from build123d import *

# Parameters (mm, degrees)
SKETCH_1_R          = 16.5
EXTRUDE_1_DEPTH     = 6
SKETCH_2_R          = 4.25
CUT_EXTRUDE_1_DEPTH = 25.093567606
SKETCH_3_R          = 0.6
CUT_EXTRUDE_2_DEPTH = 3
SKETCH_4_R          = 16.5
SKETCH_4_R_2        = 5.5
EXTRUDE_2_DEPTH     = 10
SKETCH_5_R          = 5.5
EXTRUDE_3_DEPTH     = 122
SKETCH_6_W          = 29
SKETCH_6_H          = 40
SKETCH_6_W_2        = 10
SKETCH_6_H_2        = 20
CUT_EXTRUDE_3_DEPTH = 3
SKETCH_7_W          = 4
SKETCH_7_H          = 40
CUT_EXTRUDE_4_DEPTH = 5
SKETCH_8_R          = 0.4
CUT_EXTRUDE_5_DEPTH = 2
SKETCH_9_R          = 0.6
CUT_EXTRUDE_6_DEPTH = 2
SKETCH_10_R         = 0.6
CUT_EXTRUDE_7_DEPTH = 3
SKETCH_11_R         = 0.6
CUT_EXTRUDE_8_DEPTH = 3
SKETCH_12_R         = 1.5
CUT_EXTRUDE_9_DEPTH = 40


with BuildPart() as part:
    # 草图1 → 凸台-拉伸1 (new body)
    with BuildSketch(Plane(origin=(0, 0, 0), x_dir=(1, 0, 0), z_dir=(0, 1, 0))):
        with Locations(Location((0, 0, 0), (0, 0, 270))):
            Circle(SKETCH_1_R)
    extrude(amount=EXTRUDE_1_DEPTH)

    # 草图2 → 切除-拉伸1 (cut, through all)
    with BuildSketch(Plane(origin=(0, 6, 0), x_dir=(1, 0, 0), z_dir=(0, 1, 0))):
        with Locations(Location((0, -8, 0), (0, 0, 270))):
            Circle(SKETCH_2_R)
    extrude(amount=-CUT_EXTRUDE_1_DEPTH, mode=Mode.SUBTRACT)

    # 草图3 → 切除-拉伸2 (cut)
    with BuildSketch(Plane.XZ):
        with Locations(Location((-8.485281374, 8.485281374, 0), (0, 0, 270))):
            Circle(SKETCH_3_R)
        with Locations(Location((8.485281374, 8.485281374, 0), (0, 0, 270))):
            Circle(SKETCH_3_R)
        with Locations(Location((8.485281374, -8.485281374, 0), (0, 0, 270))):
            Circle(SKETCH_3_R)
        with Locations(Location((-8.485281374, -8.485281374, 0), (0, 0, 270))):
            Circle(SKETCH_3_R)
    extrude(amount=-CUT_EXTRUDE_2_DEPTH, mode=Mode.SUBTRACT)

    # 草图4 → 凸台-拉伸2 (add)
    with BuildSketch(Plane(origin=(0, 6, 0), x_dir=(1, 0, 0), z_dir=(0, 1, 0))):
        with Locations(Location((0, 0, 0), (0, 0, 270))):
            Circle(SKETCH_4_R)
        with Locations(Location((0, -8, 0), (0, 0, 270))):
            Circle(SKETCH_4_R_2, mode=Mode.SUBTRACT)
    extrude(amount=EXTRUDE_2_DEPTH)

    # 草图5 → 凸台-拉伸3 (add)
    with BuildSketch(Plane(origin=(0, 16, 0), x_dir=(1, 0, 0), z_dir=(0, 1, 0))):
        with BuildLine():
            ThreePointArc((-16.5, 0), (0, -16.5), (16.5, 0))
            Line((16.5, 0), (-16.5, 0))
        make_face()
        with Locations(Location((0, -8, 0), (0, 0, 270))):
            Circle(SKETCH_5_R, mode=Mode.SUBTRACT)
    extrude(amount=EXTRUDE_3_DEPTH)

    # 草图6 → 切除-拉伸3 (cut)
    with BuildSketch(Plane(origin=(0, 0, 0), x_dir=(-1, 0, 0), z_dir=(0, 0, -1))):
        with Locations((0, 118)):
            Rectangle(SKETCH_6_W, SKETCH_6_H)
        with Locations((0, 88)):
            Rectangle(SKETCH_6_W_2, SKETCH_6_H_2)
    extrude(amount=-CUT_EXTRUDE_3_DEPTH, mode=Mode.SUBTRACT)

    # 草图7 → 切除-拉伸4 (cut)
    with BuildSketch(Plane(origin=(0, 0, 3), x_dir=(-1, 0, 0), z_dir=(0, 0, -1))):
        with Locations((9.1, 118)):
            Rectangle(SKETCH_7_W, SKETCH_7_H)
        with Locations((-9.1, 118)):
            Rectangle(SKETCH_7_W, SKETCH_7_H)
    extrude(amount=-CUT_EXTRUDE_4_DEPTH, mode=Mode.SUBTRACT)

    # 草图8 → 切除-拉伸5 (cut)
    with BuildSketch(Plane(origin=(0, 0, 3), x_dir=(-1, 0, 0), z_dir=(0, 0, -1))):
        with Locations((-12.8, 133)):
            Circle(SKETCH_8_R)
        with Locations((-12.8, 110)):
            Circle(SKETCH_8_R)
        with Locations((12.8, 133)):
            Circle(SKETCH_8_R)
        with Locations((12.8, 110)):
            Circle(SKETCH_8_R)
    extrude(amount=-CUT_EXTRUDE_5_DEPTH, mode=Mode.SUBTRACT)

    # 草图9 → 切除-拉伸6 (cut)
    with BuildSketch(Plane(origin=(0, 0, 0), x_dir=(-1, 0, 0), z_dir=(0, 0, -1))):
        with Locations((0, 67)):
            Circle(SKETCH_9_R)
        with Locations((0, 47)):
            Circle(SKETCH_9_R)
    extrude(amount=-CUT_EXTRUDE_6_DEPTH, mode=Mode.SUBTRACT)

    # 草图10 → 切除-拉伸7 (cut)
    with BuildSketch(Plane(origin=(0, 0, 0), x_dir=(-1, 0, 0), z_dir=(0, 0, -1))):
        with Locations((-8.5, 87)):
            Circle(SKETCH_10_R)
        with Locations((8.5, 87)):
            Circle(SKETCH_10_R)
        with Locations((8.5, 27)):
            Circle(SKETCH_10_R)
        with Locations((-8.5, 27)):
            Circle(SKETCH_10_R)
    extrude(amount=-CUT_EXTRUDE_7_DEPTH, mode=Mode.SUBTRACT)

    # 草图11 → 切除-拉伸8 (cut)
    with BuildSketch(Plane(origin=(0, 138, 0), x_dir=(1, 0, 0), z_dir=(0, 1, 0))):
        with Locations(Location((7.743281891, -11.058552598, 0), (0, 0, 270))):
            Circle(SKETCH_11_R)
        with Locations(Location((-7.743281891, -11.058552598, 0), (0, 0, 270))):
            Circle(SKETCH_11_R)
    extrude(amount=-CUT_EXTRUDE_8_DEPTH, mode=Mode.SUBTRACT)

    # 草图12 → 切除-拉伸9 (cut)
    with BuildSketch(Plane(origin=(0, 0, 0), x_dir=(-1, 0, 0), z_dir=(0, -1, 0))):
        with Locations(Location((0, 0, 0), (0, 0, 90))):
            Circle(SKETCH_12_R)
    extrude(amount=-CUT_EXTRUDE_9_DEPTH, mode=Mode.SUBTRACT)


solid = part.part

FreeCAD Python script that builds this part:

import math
import FreeCAD as App
import Part
import Sketcher
Q = App.Units.Quantity

doc = App.newDocument("Part")
body = doc.addObject("PartDesign::Body", "Body")

sketch1 = body.newObject("Sketcher::SketchObject", "Sketch")
sketch1.AttachmentSupport = (doc.getObject("XZ_Plane"), [""])
sketch1.MapMode = "FlatFace"
sketch1.addGeometry(Part.Circle(App.Vector(0, 0, 0), App.Vector(0, 0, 1), 16.5), False)
sketch1.addConstraint(Sketcher.Constraint("Coincident", 0, 3, -1, 1))
sketch1.addConstraint(Sketcher.Constraint("Diameter", 0, Q("33 mm")))
pad1 = body.newObject("PartDesign::Pad", "Pad")
pad1.Profile = sketch1
pad1.Length = 6
pad1.Reversed = True

sketch2 = body.newObject("Sketcher::SketchObject", "Sketch001")
sketch2.AttachmentSupport = (doc.getObject("XZ_Plane"), [""])
sketch2.MapMode = "FlatFace"
sketch2.AttachmentOffset = App.Placement(App.Vector(0, 0, -6), App.Rotation())
sketch2.addGeometry(Part.Circle(App.Vector(0, 8, 0), App.Vector(0, 0, 1), 4.25), False)
sketch2.addConstraint(Sketcher.Constraint("PointOnObject", 0, 3, -2))
sketch2.addConstraint(Sketcher.Constraint("Diameter", 0, Q("8.5 mm")))
sketch2.addConstraint(Sketcher.Constraint("DistanceY", -1, 1, 0, 3, Q("8 mm")))
pocket1 = body.newObject("PartDesign::Pocket", "Pocket")
pocket1.Profile = sketch2
pocket1.Type = "ThroughAll"
pocket1.Reversed = True

sketch3 = body.newObject("Sketcher::SketchObject", "Sketch002")
sketch3.AttachmentSupport = (doc.getObject("XZ_Plane"), [""])
sketch3.MapMode = "FlatFace"
sketch3.addGeometry(Part.Circle(App.Vector(-8.485281, 8.485281, 0), App.Vector(0, 0, 1), 0.6), False)
sketch3.addGeometry(Part.Circle(App.Vector(8.485281, 8.485281, 0), App.Vector(0, 0, 1), 0.6), False)
sketch3.addGeometry(Part.Circle(App.Vector(8.485281, -8.485281, 0), App.Vector(0, 0, 1), 0.6), False)
sketch3.addGeometry(Part.Circle(App.Vector(-8.485281, -8.485281, 0), App.Vector(0, 0, 1), 0.6), False)
sketch3.addConstraint(Sketcher.Constraint("Equal", 0, 1))
sketch3.addConstraint(Sketcher.Constraint("Equal", 1, 2))
sketch3.addConstraint(Sketcher.Constraint("Equal", 2, 3))
sketch3.addConstraint(Sketcher.Constraint("Symmetric", 0, 3, 2, 3, -1, 1))
sketch3.addConstraint(Sketcher.Constraint("Symmetric", 1, 3, 3, 3, -1, 1))
sketch3.addConstraint(Sketcher.Constraint("Symmetric", 0, 3, 1, 3, -2))
sketch3.addConstraint(Sketcher.Constraint("Diameter", 0, Q("1.2 mm")))
sketch3.addConstraint(Sketcher.Constraint("DistanceX", 0, 3, -1, 1, Q("8.485281 mm")))
sketch3.addConstraint(Sketcher.Constraint("DistanceY", -1, 1, 0, 3, Q("8.485281 mm")))
pocket2 = body.newObject("PartDesign::Pocket", "Pocket001")
pocket2.Profile = sketch3
pocket2.Length = 3

sketch4 = body.newObject("Sketcher::SketchObject", "Sketch003")
sketch4.AttachmentSupport = (doc.getObject("XZ_Plane"), [""])
sketch4.MapMode = "FlatFace"
sketch4.AttachmentOffset = App.Placement(App.Vector(0, 0, -6), App.Rotation())
sketch4.addGeometry(Part.Circle(App.Vector(0, 0, 0), App.Vector(0, 0, 1), 16.5), False)
sketch4.addGeometry(Part.Circle(App.Vector(0, 8, 0), App.Vector(0, 0, 1), 5.5), False)
sketch4.addConstraint(Sketcher.Constraint("Coincident", 0, 3, -1, 1))
sketch4.addConstraint(Sketcher.Constraint("PointOnObject", 1, 3, -2))
sketch4.addConstraint(Sketcher.Constraint("Diameter", 0, Q("33 mm")))
sketch4.addConstraint(Sketcher.Constraint("Diameter", 1, Q("11 mm")))
sketch4.addConstraint(Sketcher.Constraint("DistanceY", -1, 1, 1, 3, Q("8 mm")))
pad2 = body.newObject("PartDesign::Pad", "Pad001")
pad2.Profile = sketch4
pad2.Length = 10
pad2.Reversed = True

sketch5 = body.newObject("Sketcher::SketchObject", "Sketch004")
sketch5.AttachmentSupport = (doc.getObject("XZ_Plane"), [""])
sketch5.MapMode = "FlatFace"
sketch5.AttachmentOffset = App.Placement(App.Vector(0, 0, -16), App.Rotation())
sketch5.addGeometry(Part.ArcOfCircle(Part.Circle(App.Vector(0, 0, 0), App.Vector(0, 0, 1), 16.5), math.radians(0), math.radians(180)), False)
sketch5.addGeometry(Part.LineSegment(App.Vector(16.5, 0, 0), App.Vector(-16.5, 0, 0)), False)
sketch5.addGeometry(Part.Circle(App.Vector(0, 8, 0), App.Vector(0, 0, 1), 5.5), False)
sketch5.addConstraint(Sketcher.Constraint("Coincident", 0, 1, 1, 1))
sketch5.addConstraint(Sketcher.Constraint("Coincident", 1, 2, 0, 2))
sketch5.addConstraint(Sketcher.Constraint("Horizontal", 1))
sketch5.addConstraint(Sketcher.Constraint("Coincident", 0, 3, -1, 1))
sketch5.addConstraint(Sketcher.Constraint("PointOnObject", 2, 3, -2))
sketch5.addConstraint(Sketcher.Constraint("PointOnObject", 0, 1, -1))
sketch5.addConstraint(Sketcher.Constraint("Diameter", 2, Q("11 mm")))
sketch5.addConstraint(Sketcher.Constraint("Radius", 0, Q("16.5 mm")))
sketch5.addConstraint(Sketcher.Constraint("DistanceY", -1, 1, 2, 3, Q("8 mm")))
pad3 = body.newObject("PartDesign::Pad", "Pad002")
pad3.Profile = sketch5
pad3.Length = 122
pad3.Reversed = True

sketch6 = body.newObject("Sketcher::SketchObject", "Sketch005")
sketch6.AttachmentSupport = (doc.getObject("XY_Plane"), [""])
sketch6.MapMode = "FlatFace"
sketch6.addGeometry(Part.LineSegment(App.Vector(14.5, 138, 0), App.Vector(14.5, 98, 0)), False)
sketch6.addGeometry(Part.LineSegment(App.Vector(14.5, 98, 0), App.Vector(5, 98, 0)), False)
sketch6.addGeometry(Part.LineSegment(App.Vector(5, 98, 0), App.Vector(5, 78, 0)), False)
sketch6.addGeometry(Part.LineSegment(App.Vector(5, 78, 0), App.Vector(-5, 78, 0)), False)
sketch6.addGeometry(Part.LineSegment(App.Vector(-5, 78, 0), App.Vector(-5, 98, 0)), False)
sketch6.addGeometry(Part.LineSegment(App.Vector(-5, 98, 0), App.Vector(-14.5, 98, 0)), False)
sketch6.addGeometry(Part.LineSegment(App.Vector(-14.5, 98, 0), App.Vector(-14.5, 138, 0)), False)
sketch6.addGeometry(Part.LineSegment(App.Vector(-14.5, 138, 0), App.Vector(14.5, 138, 0)), False)
sketch6.addConstraint(Sketcher.Constraint("Coincident", 0, 2, 1, 1))
sketch6.addConstraint(Sketcher.Constraint("Coincident", 1, 2, 2, 1))
sketch6.addConstraint(Sketcher.Constraint("Coincident", 2, 2, 3, 1))
sketch6.addConstraint(Sketcher.Constraint("Coincident", 3, 2, 4, 1))
sketch6.addConstraint(Sketcher.Constraint("Coincident", 4, 2, 5, 1))
sketch6.addConstraint(Sketcher.Constraint("Coincident", 5, 2, 6, 1))
sketch6.addConstraint(Sketcher.Constraint("Coincident", 6, 2, 7, 1))
sketch6.addConstraint(Sketcher.Constraint("Coincident", 7, 2, 0, 1))
sketch6.addConstraint(Sketcher.Constraint("Vertical", 0))
sketch6.addConstraint(Sketcher.Constraint("Horizontal", 1))
sketch6.addConstraint(Sketcher.Constraint("Vertical", 2))
sketch6.addConstraint(Sketcher.Constraint("Horizontal", 3))
sketch6.addConstraint(Sketcher.Constraint("Vertical", 4))
sketch6.addConstraint(Sketcher.Constraint("Horizontal", 5))
sketch6.addConstraint(Sketcher.Constraint("Vertical", 6))
sketch6.addConstraint(Sketcher.Constraint("Horizontal", 7))
sketch6.addConstraint(Sketcher.Constraint("Symmetric", 1, 2, 4, 2, -2))
sketch6.addConstraint(Sketcher.Constraint("Equal", 1, 5))
sketch6.addConstraint(Sketcher.Constraint("DistanceX", 3, 2, 3, 1, Q("10 mm")))
sketch6.addConstraint(Sketcher.Constraint("DistanceX", 7, 1, 7, 2, Q("29 mm")))
sketch6.addConstraint(Sketcher.Constraint("DistanceY", 0, 2, 0, 1, Q("40 mm")))
sketch6.addConstraint(Sketcher.Constraint("DistanceY", 2, 2, 2, 1, Q("20 mm")))
sketch6.addConstraint(Sketcher.Constraint("DistanceY", -1, 1, 0, 2, Q("98 mm")))
pocket3 = body.newObject("PartDesign::Pocket", "Pocket002")
pocket3.Profile = sketch6
pocket3.Length = 3
pocket3.Reversed = True

sketch7 = body.newObject("Sketcher::SketchObject", "Sketch006")
sketch7.AttachmentSupport = (doc.getObject("XY_Plane"), [""])
sketch7.MapMode = "FlatFace"
sketch7.AttachmentOffset = App.Placement(App.Vector(0, 0, 3), App.Rotation())
sketch7.addGeometry(Part.LineSegment(App.Vector(-7.1, 138, 0), App.Vector(-7.1, 98, 0)), False)
sketch7.addGeometry(Part.LineSegment(App.Vector(-7.1, 98, 0), App.Vector(-11.1, 98, 0)), False)
sketch7.addGeometry(Part.LineSegment(App.Vector(-11.1, 98, 0), App.Vector(-11.1, 138, 0)), False)
sketch7.addGeometry(Part.LineSegment(App.Vector(-11.1, 138, 0), App.Vector(-7.1, 138, 0)), False)
sketch7.addGeometry(Part.LineSegment(App.Vector(11.1, 138, 0), App.Vector(11.1, 98, 0)), False)
sketch7.addGeometry(Part.LineSegment(App.Vector(11.1, 98, 0), App.Vector(7.1, 98, 0)), False)
sketch7.addGeometry(Part.LineSegment(App.Vector(7.1, 98, 0), App.Vector(7.1, 138, 0)), False)
sketch7.addGeometry(Part.LineSegment(App.Vector(7.1, 138, 0), App.Vector(11.1, 138, 0)), False)
sketch7.addConstraint(Sketcher.Constraint("Coincident", 0, 2, 1, 1))
sketch7.addConstraint(Sketcher.Constraint("Coincident", 1, 2, 2, 1))
sketch7.addConstraint(Sketcher.Constraint("Coincident", 2, 2, 3, 1))
sketch7.addConstraint(Sketcher.Constraint("Coincident", 3, 2, 0, 1))
sketch7.addConstraint(Sketcher.Constraint("Coincident", 4, 2, 5, 1))
sketch7.addConstraint(Sketcher.Constraint("Coincident", 5, 2, 6, 1))
sketch7.addConstraint(Sketcher.Constraint("Coincident", 6, 2, 7, 1))
sketch7.addConstraint(Sketcher.Constraint("Coincident", 7, 2, 4, 1))
sketch7.addConstraint(Sketcher.Constraint("Vertical", 0))
sketch7.addConstraint(Sketcher.Constraint("Horizontal", 1))
sketch7.addConstraint(Sketcher.Constraint("Vertical", 2))
sketch7.addConstraint(Sketcher.Constraint("Horizontal", 3))
sketch7.addConstraint(Sketcher.Constraint("Vertical", 4))
sketch7.addConstraint(Sketcher.Constraint("Horizontal", 5))
sketch7.addConstraint(Sketcher.Constraint("Vertical", 6))
sketch7.addConstraint(Sketcher.Constraint("Horizontal", 7))
sketch7.addConstraint(Sketcher.Constraint("Symmetric", 1, 2, 4, 2, -2))
sketch7.addConstraint(Sketcher.Constraint("Symmetric", 3, 2, 6, 2, -2))
sketch7.addConstraint(Sketcher.Constraint("DistanceX", 1, 2, 1, 1, Q("4 mm")))
sketch7.addConstraint(Sketcher.Constraint("DistanceY", 0, 2, 0, 1, Q("40 mm")))
sketch7.addConstraint(Sketcher.Constraint("DistanceY", -1, 1, 0, 2, Q("98 mm")))
sketch7.addConstraint(Sketcher.Constraint("DistanceX", 0, 2, -1, 1, Q("7.1 mm")))
pocket4 = body.newObject("PartDesign::Pocket", "Pocket003")
pocket4.Profile = sketch7
pocket4.Length = 5
pocket4.Reversed = True

sketch8 = body.newObject("Sketcher::SketchObject", "Sketch007")
sketch8.AttachmentSupport = (doc.getObject("XY_Plane"), [""])
sketch8.MapMode = "FlatFace"
sketch8.AttachmentOffset = App.Placement(App.Vector(0, 0, 3), App.Rotation())
sketch8.addGeometry(Part.Circle(App.Vector(12.8, 133, 0), App.Vector(0, 0, 1), 0.4), False)
sketch8.addGeometry(Part.Circle(App.Vector(12.8, 110, 0), App.Vector(0, 0, 1), 0.4), False)
sketch8.addGeometry(Part.Circle(App.Vector(-12.8, 133, 0), App.Vector(0, 0, 1), 0.4), False)
sketch8.addGeometry(Part.Circle(App.Vector(-12.8, 110, 0), App.Vector(0, 0, 1), 0.4), False)
sketch8.addConstraint(Sketcher.Constraint("Equal", 0, 1))
sketch8.addConstraint(Sketcher.Constraint("Equal", 1, 2))
sketch8.addConstraint(Sketcher.Constraint("Equal", 2, 3))
sketch8.addConstraint(Sketcher.Constraint("Symmetric", 0, 3, 2, 3, -2))
sketch8.addConstraint(Sketcher.Constraint("Symmetric", 1, 3, 3, 3, -2))
sketch8.addConstraint(Sketcher.Constraint("Vertical", 0, 3, 1, 3))
sketch8.addConstraint(Sketcher.Constraint("Diameter", 0, Q("0.8 mm")))
sketch8.addConstraint(Sketcher.Constraint("DistanceY", -1, 1, 0, 3, Q("133 mm")))
sketch8.addConstraint(Sketcher.Constraint("DistanceY", -1, 1, 1, 3, Q("110 mm")))
sketch8.addConstraint(Sketcher.Constraint("DistanceX", -1, 1, 0, 3, Q("12.8 mm")))
pocket5 = body.newObject("PartDesign::Pocket", "Pocket004")
pocket5.Profile = sketch8
pocket5.Length = 2
pocket5.Reversed = True

sketch9 = body.newObject("Sketcher::SketchObject", "Sketch008")
sketch9.AttachmentSupport = (doc.getObject("XY_Plane"), [""])
sketch9.MapMode = "FlatFace"
sketch9.addGeometry(Part.Circle(App.Vector(0, 67, 0), App.Vector(0, 0, 1), 0.6), False)
sketch9.addGeometry(Part.Circle(App.Vector(0, 47, 0), App.Vector(0, 0, 1), 0.6), False)
sketch9.addConstraint(Sketcher.Constraint("Equal", 0, 1))
sketch9.addConstraint(Sketcher.Constraint("PointOnObject", 0, 3, -2))
sketch9.addConstraint(Sketcher.Constraint("PointOnObject", 1, 3, -2))
sketch9.addConstraint(Sketcher.Constraint("Diameter", 0, Q("1.2 mm")))
sketch9.addConstraint(Sketcher.Constraint("DistanceY", -1, 1, 0, 3, Q("67 mm")))
sketch9.addConstraint(Sketcher.Constraint("DistanceY", -1, 1, 1, 3, Q("47 mm")))
pocket6 = body.newObject("PartDesign::Pocket", "Pocket005")
pocket6.Profile = sketch9
pocket6.Length = 2
pocket6.Reversed = True

sketch10 = body.newObject("Sketcher::SketchObject", "Sketch009")
sketch10.AttachmentSupport = (doc.getObject("XY_Plane"), [""])
sketch10.MapMode = "FlatFace"
sketch10.addGeometry(Part.Circle(App.Vector(8.5, 87, 0), App.Vector(0, 0, 1), 0.6), False)
sketch10.addGeometry(Part.Circle(App.Vector(-8.5, 87, 0), App.Vector(0, 0, 1), 0.6), False)
sketch10.addGeometry(Part.Circle(App.Vector(-8.5, 27, 0), App.Vector(0, 0, 1), 0.6), False)
sketch10.addGeometry(Part.Circle(App.Vector(8.5, 27, 0), App.Vector(0, 0, 1), 0.6), False)
sketch10.addConstraint(Sketcher.Constraint("Equal", 0, 1))
sketch10.addConstraint(Sketcher.Constraint("Equal", 1, 2))
sketch10.addConstraint(Sketcher.Constraint("Equal", 2, 3))
sketch10.addConstraint(Sketcher.Constraint("Symmetric", 0, 3, 1, 3, -2))
sketch10.addConstraint(Sketcher.Constraint("Symmetric", 2, 3, 3, 3, -2))
sketch10.addConstraint(Sketcher.Constraint("Vertical", 1, 3, 2, 3))
sketch10.addConstraint(Sketcher.Constraint("Diameter", 0, Q("1.2 mm")))
sketch10.addConstraint(Sketcher.Constraint("DistanceY", -1, 1, 0, 3, Q("87 mm")))
sketch10.addConstraint(Sketcher.Constraint("DistanceY", -1, 1, 2, 3, Q("27 mm")))
sketch10.addConstraint(Sketcher.Constraint("DistanceX", 1, 3, 0, 3, Q("17 mm")))
pocket7 = body.newObject("PartDesign::Pocket", "Pocket006")
pocket7.Profile = sketch10
pocket7.Length = 3
pocket7.Reversed = True

sketch11 = body.newObject("Sketcher::SketchObject", "Sketch010")
sketch11.AttachmentSupport = (doc.getObject("XZ_Plane"), [""])
sketch11.MapMode = "FlatFace"
sketch11.AttachmentOffset = App.Placement(App.Vector(0, 0, -138), App.Rotation())
sketch11.addGeometry(Part.Circle(App.Vector(7.743282, 11.058553, 0), App.Vector(0, 0, 1), 0.6), False)
sketch11.addGeometry(Part.Circle(App.Vector(-7.743282, 11.058553, 0), App.Vector(0, 0, 1), 0.6), False)
sketch11.addConstraint(Sketcher.Constraint("Equal", 0, 1))
sketch11.addConstraint(Sketcher.Constraint("Symmetric", 0, 3, 1, 3, -2))
sketch11.addConstraint(Sketcher.Constraint("Diameter", 0, Q("1.2 mm")))
sketch11.addConstraint(Sketcher.Constraint("DistanceX", -1, 1, 0, 3, Q("7.743282 mm")))
sketch11.addConstraint(Sketcher.Constraint("DistanceY", -1, 1, 0, 3, Q("11.058553 mm")))
pocket8 = body.newObject("PartDesign::Pocket", "Pocket007")
pocket8.Profile = sketch11
pocket8.Length = 3
pocket8.Reversed = True

sketch12 = body.newObject("Sketcher::SketchObject", "Sketch011")
sketch12.AttachmentSupport = (doc.getObject("XZ_Plane"), [""])
sketch12.MapMode = "FlatFace"
sketch12.addGeometry(Part.Circle(App.Vector(0, 0, 0), App.Vector(0, 0, 1), 1.5), False)
sketch12.addConstraint(Sketcher.Constraint("Coincident", 0, 3, -1, 1))
sketch12.addConstraint(Sketcher.Constraint("Diameter", 0, Q("3 mm")))
pocket9 = body.newObject("PartDesign::Pocket", "Pocket008")
pocket9.Profile = sketch12
pocket9.Length = 40

doc.recompute()
